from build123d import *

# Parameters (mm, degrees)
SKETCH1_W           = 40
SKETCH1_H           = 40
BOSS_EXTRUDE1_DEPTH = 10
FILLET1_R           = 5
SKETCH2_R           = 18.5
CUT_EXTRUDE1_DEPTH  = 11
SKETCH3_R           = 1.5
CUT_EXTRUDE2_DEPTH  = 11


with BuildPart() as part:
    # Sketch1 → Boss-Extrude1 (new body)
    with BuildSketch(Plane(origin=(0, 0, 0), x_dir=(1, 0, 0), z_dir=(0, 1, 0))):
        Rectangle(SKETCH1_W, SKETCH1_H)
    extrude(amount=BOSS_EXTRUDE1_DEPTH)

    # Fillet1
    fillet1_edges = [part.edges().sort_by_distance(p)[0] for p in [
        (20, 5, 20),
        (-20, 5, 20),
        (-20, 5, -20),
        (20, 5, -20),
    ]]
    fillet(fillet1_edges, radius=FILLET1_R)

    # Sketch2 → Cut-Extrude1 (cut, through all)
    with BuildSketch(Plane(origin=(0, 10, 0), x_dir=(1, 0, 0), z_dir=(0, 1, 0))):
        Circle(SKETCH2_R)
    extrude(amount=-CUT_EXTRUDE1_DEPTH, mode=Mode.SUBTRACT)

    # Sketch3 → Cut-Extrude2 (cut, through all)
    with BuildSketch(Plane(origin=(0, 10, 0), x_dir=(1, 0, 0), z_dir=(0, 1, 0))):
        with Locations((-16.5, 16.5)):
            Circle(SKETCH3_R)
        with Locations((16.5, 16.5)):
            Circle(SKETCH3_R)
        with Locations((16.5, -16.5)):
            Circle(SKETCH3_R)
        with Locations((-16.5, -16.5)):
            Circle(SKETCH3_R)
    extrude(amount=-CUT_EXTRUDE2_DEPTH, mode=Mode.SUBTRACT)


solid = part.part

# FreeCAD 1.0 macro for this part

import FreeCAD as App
import Part
import Sketcher


def edges_at(feature, points):
    """Names of the edges that pass closest to the given points."""
    edges = feature.Shape.Edges
    near = lambda p: min(range(len(edges)), key=lambda i: edges[i].distToShape(Part.Vertex(*p))[0])
    return sorted({f"Edge{near(p) + 1}" for p in points})


def add_polygon(sketch, points):
    """Adds a closed chain of lines whose ends are joined by coincident constraints."""
    first, n = sketch.GeometryCount, len(points)
    for a, b in zip(points, points[1:] + points[:1]):
        sketch.addGeometry(Part.LineSegment(App.Vector(*a, 0), App.Vector(*b, 0)), False)
    for i in range(n):
        sketch.addConstraint(Sketcher.Constraint("Coincident", first + i, 2, first + (i + 1) % n, 1))

doc = App.newDocument("Part")
params = doc.addObject("Spreadsheet::Sheet", "Params")
for row, (alias, value) in enumerate([
    ("sketch1_width", "40 mm"),
    ("pad1_length", "10 mm"),
    ("fillet_radius", "5 mm"),
    ("sketch2_diameter", "37 mm"),
    ("sketch3_diameter", "3 mm"),
], start=1):
    params.set(f"A{row}", alias)
    params.set(f"B{row}", "=" + value)
    params.setAlias(f"B{row}", alias)

body = doc.addObject("PartDesign::Body", "Body")

sketch1 = body.newObject("Sketcher::SketchObject", "Sketch")
sketch1.AttachmentSupport = (doc.getObject("XZ_Plane"), [""])
sketch1.MapMode = "FlatFace"
add_polygon(sketch1, [(-20, -20), (-20, 20), (20, 20), (20, -20)])
sketch1.addConstraint([
    Sketcher.Constraint("Vertical", 0),
    Sketcher.Constraint("Horizontal", 1),
    Sketcher.Constraint("Vertical", 2),
    Sketcher.Constraint("Horizontal", 3),
    Sketcher.Constraint("Symmetric", 0, 2, 2, 2, -1, 1),
    Sketcher.Constraint("Equal", 3, 0),
    Sketcher.Constraint("DistanceX", 1, 1, 1, 2, 40.0),
])
sketch1.setExpression("Constraints[10]", "Params.sketch1_width")
pad1 = body.newObject("PartDesign::Pad", "Pad")
pad1.Profile = sketch1
pad1.setExpression("Length", "Params.pad1_length")
pad1.Reversed = True
doc.recompute()

fillet = body.newObject("PartDesign::Fillet", "Fillet")
fillet.Base = (pad1, edges_at(pad1, [
    (20, 5, 20),
    (-20, 5, 20),
    (-20, 5, -20),
    (20, 5, -20),
]))
fillet.setExpression("Radius", "Params.fillet_radius")

sketch2 = body.newObject("Sketcher::SketchObject", "Sketch001")
sketch2.AttachmentSupport = (doc.getObject("XZ_Plane"), [""])
sketch2.MapMode = "FlatFace"
sketch2.AttachmentOffset = App.Placement(App.Vector(0, 0, -10), App.Rotation())
sketch2.addGeometry(Part.Circle(App.Vector(0, 0, 0), App.Vector(0, 0, 1), 18), False)
sketch2.addConstraint([
    Sketcher.Constraint("Coincident", 0, 3, -1, 1),
    Sketcher.Constraint("Diameter", 0, 37.0),
])
sketch2.setExpression("Constraints[1]", "Params.sketch2_diameter")
pocket1 = body.newObject("PartDesign::Pocket", "Pocket")
pocket1.Profile = sketch2
pocket1.Type = "ThroughAll"
pocket1.Reversed = True

sketch3 = body.newObject("Sketcher::SketchObject", "Sketch002")
sketch3.AttachmentSupport = (doc.getObject("XZ_Plane"), [""])
sketch3.MapMode = "FlatFace"
sketch3.AttachmentOffset = App.Placement(App.Vector(0, 0, -10), App.Rotation())
sketch3.addGeometry([
    Part.Circle(App.Vector(-16.5, -16.5, 0), App.Vector(0, 0, 1), 1.5),
    Part.Circle(App.Vector(16.5, -16.5, 0), App.Vector(0, 0, 1), 1.5),
    Part.Circle(App.Vector(16.5, 16.5, 0), App.Vector(0, 0, 1), 1.5),
    Part.Circle(App.Vector(-16.5, 16.5, 0), App.Vector(0, 0, 1), 1.5),
], False)
sketch3.addConstraint([
    Sketcher.Constraint("Equal", 0, 1),
    Sketcher.Constraint("Equal", 1, 2),
    Sketcher.Constraint("Equal", 2, 3),
    Sketcher.Constraint("Symmetric", 0, 3, 2, 3, -1, 1),
    Sketcher.Constraint("Symmetric", 1, 3, 3, 3, -1, 1),
    Sketcher.Constraint("Symmetric", 0, 3, 1, 3, -2),
    Sketcher.Constraint("Diameter", 0, 3.0),
    Sketcher.Constraint("DistanceX", 0, 3, 1, 3, 33.0),
    Sketcher.Constraint("DistanceY", 1, 3, 2, 3, 33.0),
])
sketch3.setExpression("Constraints[6]", "Params.sketch3_diameter")
pocket2 = body.newObject("PartDesign::Pocket", "Pocket001")
pocket2.Profile = sketch3
pocket2.Type = "ThroughAll"
pocket2.Reversed = True

doc.recompute()
